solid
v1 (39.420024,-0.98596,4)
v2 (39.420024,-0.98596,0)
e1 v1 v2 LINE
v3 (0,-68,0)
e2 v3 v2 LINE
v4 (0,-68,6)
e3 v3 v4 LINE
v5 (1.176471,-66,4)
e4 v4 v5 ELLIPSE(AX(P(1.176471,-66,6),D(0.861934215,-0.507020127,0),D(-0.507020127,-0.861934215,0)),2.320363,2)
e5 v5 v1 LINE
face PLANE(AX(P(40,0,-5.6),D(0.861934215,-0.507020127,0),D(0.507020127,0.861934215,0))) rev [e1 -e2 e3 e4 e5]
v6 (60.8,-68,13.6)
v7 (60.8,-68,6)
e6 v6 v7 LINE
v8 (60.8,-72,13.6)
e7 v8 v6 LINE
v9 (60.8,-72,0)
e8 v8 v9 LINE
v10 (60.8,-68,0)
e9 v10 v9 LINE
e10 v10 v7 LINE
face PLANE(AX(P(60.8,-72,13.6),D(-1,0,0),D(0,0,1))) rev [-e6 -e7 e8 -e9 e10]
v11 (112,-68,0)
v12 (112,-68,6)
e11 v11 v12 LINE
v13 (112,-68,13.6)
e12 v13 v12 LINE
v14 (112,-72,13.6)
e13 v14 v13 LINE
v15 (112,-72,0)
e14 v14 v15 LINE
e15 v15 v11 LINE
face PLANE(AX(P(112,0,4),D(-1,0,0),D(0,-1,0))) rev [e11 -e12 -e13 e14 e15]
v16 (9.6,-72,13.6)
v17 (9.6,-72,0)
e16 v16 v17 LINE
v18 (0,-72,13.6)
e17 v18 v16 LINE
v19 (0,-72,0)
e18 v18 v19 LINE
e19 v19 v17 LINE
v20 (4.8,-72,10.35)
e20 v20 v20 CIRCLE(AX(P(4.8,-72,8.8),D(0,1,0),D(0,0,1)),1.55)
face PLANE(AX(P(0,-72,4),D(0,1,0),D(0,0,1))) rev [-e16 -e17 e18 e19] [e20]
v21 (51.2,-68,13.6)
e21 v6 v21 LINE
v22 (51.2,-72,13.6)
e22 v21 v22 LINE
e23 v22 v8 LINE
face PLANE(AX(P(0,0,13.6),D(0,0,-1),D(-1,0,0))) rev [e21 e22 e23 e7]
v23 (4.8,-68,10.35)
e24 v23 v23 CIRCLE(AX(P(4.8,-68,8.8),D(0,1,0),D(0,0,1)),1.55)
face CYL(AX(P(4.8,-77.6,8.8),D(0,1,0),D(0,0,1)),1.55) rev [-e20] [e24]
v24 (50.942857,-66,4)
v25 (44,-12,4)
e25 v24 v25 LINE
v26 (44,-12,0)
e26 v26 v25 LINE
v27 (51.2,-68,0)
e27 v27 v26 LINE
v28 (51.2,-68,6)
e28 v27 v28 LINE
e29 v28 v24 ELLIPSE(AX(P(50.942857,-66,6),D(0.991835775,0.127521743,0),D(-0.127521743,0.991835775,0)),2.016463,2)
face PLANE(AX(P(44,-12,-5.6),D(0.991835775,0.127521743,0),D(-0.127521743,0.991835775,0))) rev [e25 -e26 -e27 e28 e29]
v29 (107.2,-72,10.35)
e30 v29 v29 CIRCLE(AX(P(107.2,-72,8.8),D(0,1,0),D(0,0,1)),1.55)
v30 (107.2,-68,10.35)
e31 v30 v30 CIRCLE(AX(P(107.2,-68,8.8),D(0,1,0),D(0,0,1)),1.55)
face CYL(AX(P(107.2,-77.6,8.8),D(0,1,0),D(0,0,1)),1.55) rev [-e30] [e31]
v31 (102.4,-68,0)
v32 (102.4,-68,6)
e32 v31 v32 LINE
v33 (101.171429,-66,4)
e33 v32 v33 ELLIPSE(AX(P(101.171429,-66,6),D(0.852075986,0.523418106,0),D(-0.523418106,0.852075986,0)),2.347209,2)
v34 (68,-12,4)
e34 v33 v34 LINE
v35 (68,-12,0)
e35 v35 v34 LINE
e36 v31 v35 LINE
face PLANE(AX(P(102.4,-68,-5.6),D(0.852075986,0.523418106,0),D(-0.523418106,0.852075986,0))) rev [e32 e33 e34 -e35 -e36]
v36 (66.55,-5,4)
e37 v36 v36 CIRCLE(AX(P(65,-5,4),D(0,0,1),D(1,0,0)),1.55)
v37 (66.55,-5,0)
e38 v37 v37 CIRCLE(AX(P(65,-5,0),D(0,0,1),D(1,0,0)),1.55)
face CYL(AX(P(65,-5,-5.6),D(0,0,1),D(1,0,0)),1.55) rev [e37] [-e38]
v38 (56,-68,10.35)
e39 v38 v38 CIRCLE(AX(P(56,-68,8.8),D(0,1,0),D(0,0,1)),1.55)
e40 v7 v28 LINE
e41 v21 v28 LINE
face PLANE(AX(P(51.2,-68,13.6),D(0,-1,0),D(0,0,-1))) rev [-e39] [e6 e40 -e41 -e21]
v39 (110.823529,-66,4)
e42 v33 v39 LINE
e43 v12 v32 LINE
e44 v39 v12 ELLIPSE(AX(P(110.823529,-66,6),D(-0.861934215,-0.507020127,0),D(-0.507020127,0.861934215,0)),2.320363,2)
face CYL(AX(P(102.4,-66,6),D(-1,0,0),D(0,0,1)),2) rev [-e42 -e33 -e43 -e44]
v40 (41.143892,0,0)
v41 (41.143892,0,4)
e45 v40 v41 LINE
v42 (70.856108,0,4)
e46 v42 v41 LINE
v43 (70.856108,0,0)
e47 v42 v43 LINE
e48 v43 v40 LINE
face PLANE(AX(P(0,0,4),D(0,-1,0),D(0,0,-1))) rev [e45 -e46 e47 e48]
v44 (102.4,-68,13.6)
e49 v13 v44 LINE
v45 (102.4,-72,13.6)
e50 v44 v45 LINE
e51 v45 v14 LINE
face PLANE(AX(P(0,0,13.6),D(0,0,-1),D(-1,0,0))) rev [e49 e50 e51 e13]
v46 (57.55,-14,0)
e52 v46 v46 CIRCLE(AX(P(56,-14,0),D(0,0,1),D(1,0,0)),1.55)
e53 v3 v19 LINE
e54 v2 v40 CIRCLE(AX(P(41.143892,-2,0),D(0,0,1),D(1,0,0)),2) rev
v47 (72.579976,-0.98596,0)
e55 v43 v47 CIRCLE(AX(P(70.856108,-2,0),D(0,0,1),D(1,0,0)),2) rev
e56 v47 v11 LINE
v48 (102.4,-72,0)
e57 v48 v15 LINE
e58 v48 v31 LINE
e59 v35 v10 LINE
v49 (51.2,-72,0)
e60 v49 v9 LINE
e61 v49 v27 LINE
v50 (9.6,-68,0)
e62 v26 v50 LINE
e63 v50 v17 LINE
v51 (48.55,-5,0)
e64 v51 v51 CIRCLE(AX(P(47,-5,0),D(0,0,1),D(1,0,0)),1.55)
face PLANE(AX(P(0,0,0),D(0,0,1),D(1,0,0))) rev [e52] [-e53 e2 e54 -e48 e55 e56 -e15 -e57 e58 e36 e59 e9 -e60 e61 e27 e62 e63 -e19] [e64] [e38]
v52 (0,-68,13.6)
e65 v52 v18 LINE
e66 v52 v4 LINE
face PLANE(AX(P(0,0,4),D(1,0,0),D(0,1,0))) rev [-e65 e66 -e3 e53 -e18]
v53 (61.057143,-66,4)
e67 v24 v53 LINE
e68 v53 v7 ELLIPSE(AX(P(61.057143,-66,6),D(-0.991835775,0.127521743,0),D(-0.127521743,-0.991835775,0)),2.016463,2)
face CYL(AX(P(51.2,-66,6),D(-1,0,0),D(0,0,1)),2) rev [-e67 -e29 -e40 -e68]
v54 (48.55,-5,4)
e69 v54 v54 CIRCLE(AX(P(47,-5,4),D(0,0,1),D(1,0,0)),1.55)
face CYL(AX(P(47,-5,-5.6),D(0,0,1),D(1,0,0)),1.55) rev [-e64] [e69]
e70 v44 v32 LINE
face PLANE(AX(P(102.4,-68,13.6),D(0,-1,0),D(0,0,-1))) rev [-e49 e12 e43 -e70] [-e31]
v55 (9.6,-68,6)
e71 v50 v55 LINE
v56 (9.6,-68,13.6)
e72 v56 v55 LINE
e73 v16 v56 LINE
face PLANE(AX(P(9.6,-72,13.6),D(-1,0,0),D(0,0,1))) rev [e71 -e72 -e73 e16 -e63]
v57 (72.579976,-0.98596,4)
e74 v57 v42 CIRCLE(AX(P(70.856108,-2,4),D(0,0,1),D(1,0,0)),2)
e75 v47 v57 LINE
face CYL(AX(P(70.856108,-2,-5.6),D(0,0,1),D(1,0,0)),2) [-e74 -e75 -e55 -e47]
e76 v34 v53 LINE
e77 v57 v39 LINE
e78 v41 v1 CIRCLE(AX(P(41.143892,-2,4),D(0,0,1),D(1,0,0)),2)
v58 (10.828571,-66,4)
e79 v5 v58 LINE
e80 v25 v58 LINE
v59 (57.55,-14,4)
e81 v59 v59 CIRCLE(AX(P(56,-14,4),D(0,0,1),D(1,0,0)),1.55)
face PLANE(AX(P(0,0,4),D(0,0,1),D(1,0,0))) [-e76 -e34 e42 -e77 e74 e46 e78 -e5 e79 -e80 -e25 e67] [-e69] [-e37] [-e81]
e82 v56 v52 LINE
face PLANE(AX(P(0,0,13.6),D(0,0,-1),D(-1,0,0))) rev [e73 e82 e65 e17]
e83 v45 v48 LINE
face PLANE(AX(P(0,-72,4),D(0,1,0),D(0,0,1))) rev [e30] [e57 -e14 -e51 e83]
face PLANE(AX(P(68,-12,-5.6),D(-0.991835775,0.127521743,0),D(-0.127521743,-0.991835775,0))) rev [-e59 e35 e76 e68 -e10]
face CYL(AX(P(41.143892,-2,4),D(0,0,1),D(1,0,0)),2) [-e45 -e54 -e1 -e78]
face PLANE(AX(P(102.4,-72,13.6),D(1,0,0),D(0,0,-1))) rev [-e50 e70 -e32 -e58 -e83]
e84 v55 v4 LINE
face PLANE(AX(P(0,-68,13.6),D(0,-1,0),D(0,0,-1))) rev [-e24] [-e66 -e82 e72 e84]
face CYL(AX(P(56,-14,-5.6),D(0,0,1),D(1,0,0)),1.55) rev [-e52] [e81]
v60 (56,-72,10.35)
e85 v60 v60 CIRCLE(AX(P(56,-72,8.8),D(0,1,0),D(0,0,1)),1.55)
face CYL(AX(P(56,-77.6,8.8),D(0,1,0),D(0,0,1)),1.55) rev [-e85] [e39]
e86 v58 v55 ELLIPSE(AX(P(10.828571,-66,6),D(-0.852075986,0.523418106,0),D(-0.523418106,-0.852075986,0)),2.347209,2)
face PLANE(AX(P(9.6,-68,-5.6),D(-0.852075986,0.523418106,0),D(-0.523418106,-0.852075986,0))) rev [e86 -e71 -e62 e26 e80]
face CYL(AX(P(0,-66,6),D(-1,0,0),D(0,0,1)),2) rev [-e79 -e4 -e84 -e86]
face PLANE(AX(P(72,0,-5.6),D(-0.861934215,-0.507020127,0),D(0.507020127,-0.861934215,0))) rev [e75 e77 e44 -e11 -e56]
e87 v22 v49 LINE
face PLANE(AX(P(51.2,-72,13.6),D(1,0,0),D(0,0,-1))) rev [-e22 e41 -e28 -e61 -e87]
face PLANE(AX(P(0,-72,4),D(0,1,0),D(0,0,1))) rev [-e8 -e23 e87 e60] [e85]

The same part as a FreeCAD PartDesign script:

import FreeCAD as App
import Part
import Sketcher

V = App.Vector


def edges_at(feature, points):
    """Names of the edges that pass closest to the given points."""
    edges = feature.Shape.Edges
    near = lambda p: min(range(len(edges)), key=lambda i: edges[i].distToShape(Part.Vertex(*p))[0])
    return sorted({f"Edge{near(p) + 1}" for p in points})

doc = App.newDocument("Part")
body = doc.addObject("PartDesign::Body", "Body")

# Sketch on XY plane
sketch1 = doc.addObject("Sketcher::SketchObject", "Sketch")
body.addObject(sketch1)
sketch1.AttachmentSupport = (doc.XY_Plane, [""])
sketch1.MapMode = "FlatFace"
sketch1.addGeometry([
    Part.LineSegment(V(0, 0, 0), V(0, -72, 0)),
    Part.LineSegment(V(0, -72, 0), V(112, -72, 0)),
    Part.LineSegment(V(112, -72, 0), V(112, 0, 0)),
    Part.LineSegment(V(112, 0, 0), V(0, 0, 0)),
], False)
sketch1.addConstraint([
    Sketcher.Constraint("Coincident", 0, 2, 1, 1),
    Sketcher.Constraint("Coincident", 1, 2, 2, 1),
    Sketcher.Constraint("Coincident", 2, 2, 3, 1),
    Sketcher.Constraint("Coincident", 3, 2, 0, 1),
    Sketcher.Constraint("Vertical", 0),
    Sketcher.Constraint("Horizontal", 1),
    Sketcher.Constraint("Vertical", 2),
    Sketcher.Constraint("Horizontal", 3),
    Sketcher.Constraint("Coincident", 3, 2, -1, 1),
    Sketcher.Constraint("DistanceX", 1, 1, 1, 2, 112.0),
    Sketcher.Constraint("DistanceY", 0, 2, 0, 1, 72.0),
])
pad1 = doc.addObject("PartDesign::Pad", "Pad")
body.addObject(pad1)
pad1.Profile = sketch1
pad1.Length = 4

# Sketch on XY plane
sketch2 = doc.addObject("Sketcher::SketchObject", "Sketch001")
body.addObject(sketch2)
sketch2.AttachmentSupport = (doc.XY_Plane, [""])
sketch2.MapMode = "FlatFace"
sketch2.AttachmentOffset = App.Placement(V(0, 0, 4), App.Rotation())
sketch2.addGeometry([
    Part.LineSegment(V(0, -68, 0), V(0, -72, 0)),  # 0
    Part.LineSegment(V(0, -72, 0), V(9.6, -72, 0)),  # 1
    Part.LineSegment(V(9.6, -72, 0), V(9.6, -68, 0)),  # 2
    Part.LineSegment(V(9.6, -68, 0), V(0, -68, 0)),  # 3
    Part.LineSegment(V(102.4, -68, 0), V(102.4, -72, 0)),  # 4
    Part.LineSegment(V(102.4, -72, 0), V(112, -72, 0)),  # 5
    Part.LineSegment(V(112, -72, 0), V(112, -68, 0)),  # 6
    Part.LineSegment(V(112, -68, 0), V(102.4, -68, 0)),  # 7
    Part.LineSegment(V(51.2, -68, 0), V(51.2, -72, 0)),  # 8
    Part.LineSegment(V(51.2, -72, 0), V(60.8, -72, 0)),  # 9
    Part.LineSegment(V(60.8, -72, 0), V(60.8, -68, 0)),  # 10
    Part.LineSegment(V(60.8, -68, 0), V(51.2, -68, 0)),  # 11
], False)
sketch2.addConstraint([
    Sketcher.Constraint("Coincident", 0, 2, 1, 1),
    Sketcher.Constraint("Coincident", 1, 2, 2, 1),
    Sketcher.Constraint("Coincident", 2, 2, 3, 1),
    Sketcher.Constraint("Coincident", 3, 2, 0, 1),
    Sketcher.Constraint("Coincident", 4, 2, 5, 1),
    Sketcher.Constraint("Coincident", 5, 2, 6, 1),
    Sketcher.Constraint("Coincident", 6, 2, 7, 1),
    Sketcher.Constraint("Coincident", 7, 2, 4, 1),
    Sketcher.Constraint("Coincident", 8, 2, 9, 1),
    Sketcher.Constraint("Coincident", 9, 2, 10, 1),
    Sketcher.Constraint("Coincident", 10, 2, 11, 1),
    Sketcher.Constraint("Coincident", 11, 2, 8, 1),
    Sketcher.Constraint("Vertical", 0),
    Sketcher.Constraint("Horizontal", 1),
    Sketcher.Constraint("Vertical", 2),
    Sketcher.Constraint("Horizontal", 3),
    Sketcher.Constraint("Vertical", 4),
    Sketcher.Constraint("Horizontal", 5),
    Sketcher.Constraint("Vertical", 6),
    Sketcher.Constraint("Horizontal", 7),
    Sketcher.Constraint("Vertical", 8),
    Sketcher.Constraint("Horizontal", 9),
    Sketcher.Constraint("Vertical", 10),
    Sketcher.Constraint("Horizontal", 11),
    Sketcher.Constraint("PointOnObject", 0, 2, -2),
    Sketcher.Constraint("Horizontal", 1, 2, 4, 2),
    Sketcher.Constraint("Horizontal", 3, 2, 6, 2),
    Sketcher.Constraint("Horizontal", 5, 2, 8, 2),
    Sketcher.Constraint("Horizontal", 7, 2, 10, 2),
    Sketcher.Constraint("Equal", 3, 5),
    Sketcher.Constraint("Equal", 7, 9),
    Sketcher.Constraint("DistanceY", 0, 2, 0, 1, 4.0),
    Sketcher.Constraint("DistanceX", 1, 1, 1, 2, 9.6),
    Sketcher.Constraint("DistanceY", 0, 2, -1, 1, 72.0),
    Sketcher.Constraint("DistanceX", -1, 1, 5, 2, 112.0),
    Sketcher.Constraint("DistanceX", -1, 1, 8, 2, 51.2),
])
pad2 = doc.addObject("PartDesign::Pad", "Pad001")
body.addObject(pad2)
pad2.Profile = sketch2
pad2.Length = 9.6

# Sketch on XZ plane
sketch3 = doc.addObject("Sketcher::SketchObject", "Sketch002")
body.addObject(sketch3)
sketch3.AttachmentSupport = (doc.XZ_Plane, [""])
sketch3.MapMode = "FlatFace"
sketch3.AttachmentOffset = App.Placement(V(0, 0, 68), App.Rotation())
sketch3.addGeometry([
    Part.Circle(V(4.8, 8.8, 0), V(0, 0, 1), 1.6),
    Part.Circle(V(56, 8.8, 0), V(0, 0, 1), 1.6),
    Part.Circle(V(107.2, 8.8, 0), V(0, 0, 1), 1.6),
], False)
sketch3.addConstraint([
    Sketcher.Constraint("Equal", 0, 1),
    Sketcher.Constraint("Equal", 1, 2),
    Sketcher.Constraint("Horizontal", 0, 3, 1, 3),
    Sketcher.Constraint("Horizontal", 1, 3, 2, 3),
    Sketcher.Constraint("Diameter", 0, 3.1),
    Sketcher.Constraint("DistanceX", -1, 1, 1, 3, 56.0),
    Sketcher.Constraint("DistanceX", -1, 1, 0, 3, 4.8),
    Sketcher.Constraint("DistanceY", -1, 1, 0, 3, 8.8),
    Sketcher.Constraint("DistanceX", -1, 1, 2, 3, 107.2),
])
pocket1 = doc.addObject("PartDesign::Pocket", "Pocket")
body.addObject(pocket1)
pocket1.Profile = sketch3
pocket1.Length = 9.6
pocket1.Reversed = True

# Sketch on XY plane
sketch4 = doc.addObject("Sketcher::SketchObject", "Sketch003")
body.addObject(sketch4)
sketch4.AttachmentSupport = (doc.XY_Plane, [""])
sketch4.MapMode = "FlatFace"
sketch4.AttachmentOffset = App.Placement(V(0, 0, 4), App.Rotation())
sketch4.addGeometry([
    Part.Circle(V(47, -5, 0), V(0, 0, 1), 1.6),
    Part.Circle(V(65, -5, 0), V(0, 0, 1), 1.6),
    Part.Circle(V(56, -14, 0), V(0, 0, 1), 1.6),
], False)
sketch4.addConstraint([
    Sketcher.Constraint("Equal", 0, 1),
    Sketcher.Constraint("Equal", 1, 2),
    Sketcher.Constraint("Horizontal", 0, 3, 1, 3),
    Sketcher.Constraint("Diameter", 0, 3.1),
    Sketcher.Constraint("DistanceX", -1, 1, 0, 3, 47.0),
    Sketcher.Constraint("DistanceY", 0, 3, -1, 1, 5.0),
    Sketcher.Constraint("DistanceX", -1, 1, 1, 3, 65.0),
    Sketcher.Constraint("DistanceX", -1, 1, 2, 3, 56.0),
    Sketcher.Constraint("DistanceY", 2, 3, -1, 1, 14.0),
])
pocket2 = doc.addObject("PartDesign::Pocket", "Pocket001")
body.addObject(pocket2)
pocket2.Profile = sketch4
pocket2.Length = 9.6

# Sketch on XY plane
sketch5 = doc.addObject("Sketcher::SketchObject", "Sketch004")
body.addObject(sketch5)
sketch5.AttachmentSupport = (doc.XY_Plane, [""])
sketch5.MapMode = "FlatFace"
sketch5.AttachmentOffset = App.Placement(V(0, 0, 4), App.Rotation())
sketch5.addGeometry([
    Part.LineSegment(V(0, 0, 0), V(0, -68, 0)),  # 0
    Part.LineSegment(V(0, -68, 0), V(40, 0, 0)),  # 1
    Part.LineSegment(V(40, 0, 0), V(0, 0, 0)),  # 2
    Part.LineSegment(V(72, 0, 0), V(112, -68, 0)),  # 3
    Part.LineSegment(V(112, -68, 0), V(112, 0, 0)),  # 4
    Part.LineSegment(V(112, 0, 0), V(72, 0, 0)),  # 5
], False)
sketch5.addConstraint([
    Sketcher.Constraint("Coincident", 0, 2, 1, 1),
    Sketcher.Constraint("Coincident", 1, 2, 2, 1),
    Sketcher.Constraint("Coincident", 2, 2, 0, 1),
    Sketcher.Constraint("Coincident", 3, 2, 4, 1),
    Sketcher.Constraint("Coincident", 4, 2, 5, 1),
    Sketcher.Constraint("Coincident", 5, 2, 3, 1),
    Sketcher.Constraint("Vertical", 0),
    Sketcher.Constraint("Horizontal", 2),
    Sketcher.Constraint("Vertical", 4),
    Sketcher.Constraint("Horizontal", 5),
    Sketcher.Constraint("Coincident", 2, 2, -1, 1),
    Sketcher.Constraint("PointOnObject", 4, 2, -1),
    Sketcher.Constraint("Horizontal", 0, 2, 3, 2),
    Sketcher.Constraint("Equal", 2, 5),
    Sketcher.Constraint("DistanceX", 2, 2, 2, 1, 40.0),
    Sketcher.Constraint("DistanceY", 0, 2, 0, 1, 68.0),
    Sketcher.Constraint("DistanceX", -1, 1, 3, 2, 112.0),
])
pocket3 = doc.addObject("PartDesign::Pocket", "Pocket002")
body.addObject(pocket3)
pocket3.Profile = sketch5
pocket3.Length = 9.6

# Sketch on XY plane
sketch6 = doc.addObject("Sketcher::SketchObject", "Sketch005")
body.addObject(sketch6)
sketch6.AttachmentSupport = (doc.XY_Plane, [""])
sketch6.MapMode = "FlatFace"
sketch6.AttachmentOffset = App.Placement(V(0, 0, 4), App.Rotation())
sketch6.addGeometry([
    Part.LineSegment(V(44, -12, 0), V(9.6, -68, 0)),  # 0
    Part.LineSegment(V(9.6, -68, 0), V(9.6, -72, 0)),  # 1
    Part.LineSegment(V(9.6, -72, 0), V(51.2, -72, 0)),  # 2
    Part.LineSegment(V(51.2, -72, 0), V(51.2, -68, 0)),  # 3
    Part.LineSegment(V(51.2, -68, 0), V(44, -12, 0)),  # 4
    Part.LineSegment(V(102.4, -72, 0), V(102.4, -68, 0)),  # 5
    Part.LineSegment(V(102.4, -68, 0), V(68, -12, 0)),  # 6
    Part.LineSegment(V(68, -12, 0), V(60.8, -68, 0)),  # 7
    Part.LineSegment(V(60.8, -68, 0), V(60.8, -72, 0)),  # 8
    Part.LineSegment(V(60.8, -72, 0), V(102.4, -72, 0)),  # 9
], False)
sketch6.addConstraint([
    Sketcher.Constraint("Coincident", 0, 2, 1, 1),
    Sketcher.Constraint("Coincident", 1, 2, 2, 1),
    Sketcher.Constraint("Coincident", 2, 2, 3, 1),
    Sketcher.Constraint("Coincident", 3, 2, 4, 1),
    Sketcher.Constraint("Coincident", 4, 2, 0, 1),
    Sketcher.Constraint("Coincident", 5, 2, 6, 1),
    Sketcher.Constraint("Coincident", 6, 2, 7, 1),
    Sketcher.Constraint("Coincident", 7, 2, 8, 1),
    Sketcher.Constraint("Coincident", 8, 2, 9, 1),
    Sketcher.Constraint("Coincident", 9, 2, 5, 1),
    Sketcher.Constraint("Vertical", 1),
    Sketcher.Constraint("Horizontal", 2),
    Sketcher.Constraint("Vertical", 3),
    Sketcher.Constraint("Vertical", 5),
    Sketcher.Constraint("Vertical", 8),
    Sketcher.Constraint("Horizontal", 9),
    Sketcher.Constraint("Horizontal", 0, 2, 3, 2),
    Sketcher.Constraint("Horizontal", 3, 2, 5, 2),
    Sketcher.Constraint("Horizontal", 4, 2, 6, 2),
    Sketcher.Constraint("Horizontal", 5, 2, 7, 2),
    Sketcher.Constraint("Horizontal", 2, 2, 8, 2),
    Sketcher.Constraint("Equal", 2, 9),
    Sketcher.Constraint("Equal", 0, 6),
    Sketcher.Constraint("DistanceY", 1, 2, 1, 1, 4.0),
    Sketcher.Constraint("DistanceX", 2, 1, 2, 2, 41.6),
    Sketcher.Constraint("DistanceY", 0, 2, -1, 1, 68.0),
    Sketcher.Constraint("DistanceX", -1, 1, 4, 2, 44.0),
    Sketcher.Constraint("DistanceY", 4, 2, -1, 1, 12.0),
    Sketcher.Constraint("DistanceX", -1, 1, 6, 2, 68.0),
    Sketcher.Constraint("DistanceX", -1, 1, 0, 2, 9.6),
])
pocket4 = doc.addObject("PartDesign::Pocket", "Pocket003")
body.addObject(pocket4)
pocket4.Profile = sketch6
pocket4.Length = 9.6
doc.recompute()

fillet = doc.addObject("PartDesign::Fillet", "Fillet")
body.addObject(fillet)
fillet.Base = (pocket4, edges_at(pocket4, [(4.8, -68, 4), (107.2, -68, 4), (56, -68, 4)]))
fillet.Radius = 2
doc.recompute()

fillet2 = doc.addObject("PartDesign::Fillet", "Fillet001")
body.addObject(fillet2)
fillet2.Base = (fillet, edges_at(fillet, [(40, 0, 2), (72, 0, 2)]))
fillet2.Radius = 2

doc.recompute()
